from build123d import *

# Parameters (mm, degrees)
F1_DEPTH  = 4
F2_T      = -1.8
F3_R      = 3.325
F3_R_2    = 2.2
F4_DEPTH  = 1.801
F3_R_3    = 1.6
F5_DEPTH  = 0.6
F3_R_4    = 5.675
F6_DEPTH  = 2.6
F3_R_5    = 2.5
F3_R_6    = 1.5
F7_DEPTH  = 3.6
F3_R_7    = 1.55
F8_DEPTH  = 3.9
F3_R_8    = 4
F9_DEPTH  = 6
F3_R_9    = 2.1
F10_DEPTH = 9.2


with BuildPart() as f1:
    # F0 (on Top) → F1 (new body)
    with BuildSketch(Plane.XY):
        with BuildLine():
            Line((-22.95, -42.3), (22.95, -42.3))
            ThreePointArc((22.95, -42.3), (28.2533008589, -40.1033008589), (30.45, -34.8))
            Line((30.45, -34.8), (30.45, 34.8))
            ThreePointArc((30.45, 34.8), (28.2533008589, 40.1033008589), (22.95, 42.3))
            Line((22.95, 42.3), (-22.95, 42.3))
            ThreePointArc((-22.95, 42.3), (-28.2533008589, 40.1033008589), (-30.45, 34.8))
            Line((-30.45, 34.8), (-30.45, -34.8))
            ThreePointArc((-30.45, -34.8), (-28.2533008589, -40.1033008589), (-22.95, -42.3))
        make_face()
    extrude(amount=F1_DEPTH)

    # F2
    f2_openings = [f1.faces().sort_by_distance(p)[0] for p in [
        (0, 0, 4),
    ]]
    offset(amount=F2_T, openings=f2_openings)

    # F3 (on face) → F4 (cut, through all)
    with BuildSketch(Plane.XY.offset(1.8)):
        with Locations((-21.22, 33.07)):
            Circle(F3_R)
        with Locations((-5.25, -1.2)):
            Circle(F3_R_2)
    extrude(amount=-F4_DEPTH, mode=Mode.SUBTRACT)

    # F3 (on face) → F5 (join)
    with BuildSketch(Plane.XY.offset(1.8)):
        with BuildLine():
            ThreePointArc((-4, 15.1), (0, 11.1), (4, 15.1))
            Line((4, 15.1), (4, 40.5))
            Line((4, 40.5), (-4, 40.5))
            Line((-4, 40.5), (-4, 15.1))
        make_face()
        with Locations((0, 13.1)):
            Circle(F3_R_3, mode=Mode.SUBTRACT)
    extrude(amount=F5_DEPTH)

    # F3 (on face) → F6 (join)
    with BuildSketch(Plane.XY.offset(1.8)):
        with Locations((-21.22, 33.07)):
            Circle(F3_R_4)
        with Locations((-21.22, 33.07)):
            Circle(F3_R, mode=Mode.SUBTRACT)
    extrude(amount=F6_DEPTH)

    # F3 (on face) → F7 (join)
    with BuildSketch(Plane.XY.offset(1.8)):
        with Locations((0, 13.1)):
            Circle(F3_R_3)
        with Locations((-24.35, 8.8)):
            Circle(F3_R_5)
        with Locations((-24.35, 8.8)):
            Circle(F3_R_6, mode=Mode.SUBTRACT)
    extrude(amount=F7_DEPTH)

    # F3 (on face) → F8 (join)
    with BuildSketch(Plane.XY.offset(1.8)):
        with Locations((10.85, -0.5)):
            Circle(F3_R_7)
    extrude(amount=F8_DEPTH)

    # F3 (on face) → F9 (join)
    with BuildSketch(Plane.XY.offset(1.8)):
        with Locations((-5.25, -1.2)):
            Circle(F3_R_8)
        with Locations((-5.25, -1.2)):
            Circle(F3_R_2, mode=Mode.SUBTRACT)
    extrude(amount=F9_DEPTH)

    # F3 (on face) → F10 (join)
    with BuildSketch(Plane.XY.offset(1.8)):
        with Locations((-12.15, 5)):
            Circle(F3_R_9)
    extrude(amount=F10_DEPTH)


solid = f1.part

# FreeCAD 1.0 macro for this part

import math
import FreeCAD as App
import Part
import Sketcher
from FreeCAD import Vector
Q = App.Units.Quantity


def faces_at(feature, points):
    """Names of the faces that lie closest to the given points."""
    faces = feature.Shape.Faces
    near = lambda p: min(range(len(faces)), key=lambda i: faces[i].distToShape(Part.Vertex(*p))[0])
    return sorted({f"Face{near(p) + 1}" for p in points})

doc = App.newDocument("Part")
body = doc.addObject("PartDesign::Body", "Body")

# Sketch on XY plane
sketch1 = body.newObject("Sketcher::SketchObject", "Sketch")
sketch1.AttachmentSupport = (doc.getObject("XY_Plane"), [""])
sketch1.MapMode = "FlatFace"
sketch1.addGeometry(Part.LineSegment(Vector(-23, -42, 0), Vector(23, -42, 0)), False)
sketch1.addGeometry(Part.ArcOfCircle(Part.Circle(Vector(23, -35, 0), Vector(0, 0, 1), 8), math.radians(-90), math.radians(0)), False)
sketch1.addGeometry(Part.LineSegment(Vector(30, -35, 0), Vector(30, 35, 0)), False)
sketch1.addGeometry(Part.ArcOfCircle(Part.Circle(Vector(23, 35, 0), Vector(0, 0, 1), 8), math.radians(0), math.radians(90)), False)
sketch1.addGeometry(Part.LineSegment(Vector(23, 42, 0), Vector(-23, 42, 0)), False)
sketch1.addGeometry(Part.ArcOfCircle(Part.Circle(Vector(-23, 35, 0), Vector(0, 0, 1), 8), math.radians(90), math.radians(180)), False)
sketch1.addGeometry(Part.LineSegment(Vector(-30, 35, 0), Vector(-30, -35, 0)), False)
sketch1.addGeometry(Part.ArcOfCircle(Part.Circle(Vector(-23, -35, 0), Vector(0, 0, 1), 8), math.radians(180), math.radians(270)), False)
sketch1.addConstraint(Sketcher.Constraint("Tangent", 0, 2, 1, 1))
sketch1.addConstraint(Sketcher.Constraint("Tangent", 1, 2, 2, 1))
sketch1.addConstraint(Sketcher.Constraint("Tangent", 2, 2, 3, 1))
sketch1.addConstraint(Sketcher.Constraint("Tangent", 3, 2, 4, 1))
sketch1.addConstraint(Sketcher.Constraint("Tangent", 4, 2, 5, 1))
sketch1.addConstraint(Sketcher.Constraint("Tangent", 5, 2, 6, 1))
sketch1.addConstraint(Sketcher.Constraint("Tangent", 6, 2, 7, 1))
sketch1.addConstraint(Sketcher.Constraint("Tangent", 7, 2, 0, 1))
sketch1.addConstraint(Sketcher.Constraint("Horizontal", 0))
sketch1.addConstraint(Sketcher.Constraint("Vertical", 2))
sketch1.addConstraint(Sketcher.Constraint("Horizontal", 4))
sketch1.addConstraint(Sketcher.Constraint("Vertical", 6))
sketch1.addConstraint(Sketcher.Constraint("Equal", 1, 3))
sketch1.addConstraint(Sketcher.Constraint("Equal", 3, 5))
sketch1.addConstraint(Sketcher.Constraint("Equal", 5, 7))
sketch1.addConstraint(Sketcher.Constraint("Symmetric", 1, 3, 5, 3, -1, 1))
sketch1.addConstraint(Sketcher.Constraint("Radius", 1, Q("7.5 mm")))
sketch1.addConstraint(Sketcher.Constraint("DistanceX", 0, 1, 0, 2, Q("45.9 mm")))
sketch1.addConstraint(Sketcher.Constraint("DistanceY", 2, 1, 2, 2, Q("69.6 mm")))
pad1 = body.newObject("PartDesign::Pad", "Pad")
pad1.Profile = sketch1
pad1.Length = 4
doc.recompute()

thickness = body.newObject("PartDesign::Thickness", "Thickness")
thickness.Base = (pad1, faces_at(pad1, [(0, 0, 4)]))
thickness.Value = 1.8
thickness.Reversed = True
thickness.Join = "Arc"

# Sketch on XY plane
sketch2 = body.newObject("Sketcher::SketchObject", "Sketch001")
sketch2.AttachmentSupport = (doc.getObject("XY_Plane"), [""])
sketch2.MapMode = "FlatFace"
sketch2.AttachmentOffset = App.Placement(Vector(0, 0, 1.8), App.Rotation())
sketch2.addGeometry(Part.Circle(Vector(-21.2, 33.1, 0), Vector(0, 0, 1), 3.3), False)
sketch2.addGeometry(Part.Circle(Vector(-5.2, -1.2, 0), Vector(0, 0, 1), 2.2), False)
sketch2.addConstraint(Sketcher.Constraint("Diameter", 1, Q("4.4 mm")))
sketch2.addConstraint(Sketcher.Constraint("Diameter", 0, Q("6.65 mm")))
sketch2.addConstraint(Sketcher.Constraint("DistanceY", 1, 3, -1, 1, Q("1.2 mm")))
sketch2.addConstraint(Sketcher.Constraint("DistanceX", 0, 3, -1, 1, Q("21.22 mm")))
sketch2.addConstraint(Sketcher.Constraint("DistanceY", -1, 1, 0, 3, Q("33.07 mm")))
sketch2.addConstraint(Sketcher.Constraint("DistanceX", 1, 3, -1, 1, Q("5.25 mm")))
pocket1 = body.newObject("PartDesign::Pocket", "Pocket")
pocket1.Profile = sketch2
pocket1.Type = "ThroughAll"

# Sketch on XY plane
sketch3 = body.newObject("Sketcher::SketchObject", "Sketch002")
sketch3.AttachmentSupport = (doc.getObject("XY_Plane"), [""])
sketch3.MapMode = "FlatFace"
sketch3.AttachmentOffset = App.Placement(Vector(0, 0, 1.8), App.Rotation())
sketch3.addGeometry(Part.ArcOfCircle(Part.Circle(Vector(0, 15.1, 0), Vector(0, 0, 1), 4), math.radians(180), math.radians(360)), False)
sketch3.addGeometry(Part.LineSegment(Vector(4, 15.1, 0), Vector(4, 40.5, 0)), False)
sketch3.addGeometry(Part.LineSegment(Vector(4, 40.5, 0), Vector(-4, 40.5, 0)), False)
sketch3.addGeometry(Part.LineSegment(Vector(-4, 40.5, 0), Vector(-4, 15.1, 0)), False)
sketch3.addGeometry(Part.Circle(Vector(0, 13.1, 0), Vector(0, 0, 1), 1.6), False)
sketch3.addConstraint(Sketcher.Constraint("Tangent", 0, 2, 1, 1))
sketch3.addConstraint(Sketcher.Constraint("Coincident", 1, 2, 2, 1))
sketch3.addConstraint(Sketcher.Constraint("Coincident", 2, 2, 3, 1))
sketch3.addConstraint(Sketcher.Constraint("Tangent", 3, 2, 0, 1))
sketch3.addConstraint(Sketcher.Constraint("Vertical", 1))
sketch3.addConstraint(Sketcher.Constraint("Horizontal", 2))
sketch3.addConstraint(Sketcher.Constraint("Vertical", 3))
sketch3.addConstraint(Sketcher.Constraint("PointOnObject", 0, 3, -2))
sketch3.addConstraint(Sketcher.Constraint("PointOnObject", 4, 3, -2))
sketch3.addConstraint(Sketcher.Constraint("Radius", 0, Q("4 mm")))
sketch3.addConstraint(Sketcher.Constraint("Diameter", 4, Q("3.2 mm")))
sketch3.addConstraint(Sketcher.Constraint("DistanceY", 1, 1, 1, 2, Q("25.4 mm")))
sketch3.addConstraint(Sketcher.Constraint("DistanceY", 4, 3, 0, 3, Q("2 mm")))
sketch3.addConstraint(Sketcher.Constraint("DistanceY", -1, 1, 0, 3, Q("15.1 mm")))
pad2 = body.newObject("PartDesign::Pad", "Pad001")
pad2.Profile = sketch3
pad2.Length = 0.6

# Sketch on XY plane
sketch4 = body.newObject("Sketcher::SketchObject", "Sketch003")
sketch4.AttachmentSupport = (doc.getObject("XY_Plane"), [""])
sketch4.MapMode = "FlatFace"
sketch4.AttachmentOffset = App.Placement(Vector(0, 0, 1.8), App.Rotation())
sketch4.addGeometry(Part.Circle(Vector(-21.2, 33.1, 0), Vector(0, 0, 1), 5.7), False)
sketch4.addGeometry(Part.Circle(Vector(-21.2, 33.1, 0), Vector(0, 0, 1), 3.3), False)
sketch4.addConstraint(Sketcher.Constraint("Coincident", 1, 3, 0, 3))
sketch4.addConstraint(Sketcher.Constraint("Diameter", 0, Q("11.35 mm")))
sketch4.addConstraint(Sketcher.Constraint("Diameter", 1, Q("6.65 mm")))
sketch4.addConstraint(Sketcher.Constraint("DistanceX", 0, 3, -1, 1, Q("21.22 mm")))
sketch4.addConstraint(Sketcher.Constraint("DistanceY", -1, 1, 0, 3, Q("33.07 mm")))
pad3 = body.newObject("PartDesign::Pad", "Pad002")
pad3.Profile = sketch4
pad3.Length = 2.6

# Sketch on XY plane
sketch5 = body.newObject("Sketcher::SketchObject", "Sketch004")
sketch5.AttachmentSupport = (doc.getObject("XY_Plane"), [""])
sketch5.MapMode = "FlatFace"
sketch5.AttachmentOffset = App.Placement(Vector(0, 0, 1.8), App.Rotation())
sketch5.addGeometry(Part.Circle(Vector(0, 13.1, 0), Vector(0, 0, 1), 1.6), False)
sketch5.addGeometry(Part.Circle(Vector(-24.4, 8.8, 0), Vector(0, 0, 1), 2.5), False)
sketch5.addGeometry(Part.Circle(Vector(-24.4, 8.8, 0), Vector(0, 0, 1), 1.5), False)
sketch5.addConstraint(Sketcher.Constraint("Coincident", 2, 3, 1, 3))
sketch5.addConstraint(Sketcher.Constraint("PointOnObject", 0, 3, -2))
sketch5.addConstraint(Sketcher.Constraint("Diameter", 1, Q("5 mm")))
sketch5.addConstraint(Sketcher.Constraint("Diameter", 2, Q("3 mm")))
sketch5.addConstraint(Sketcher.Constraint("Diameter", 0, Q("3.2 mm")))
sketch5.addConstraint(Sketcher.Constraint("DistanceY", -1, 1, 0, 3, Q("13.1 mm")))
sketch5.addConstraint(Sketcher.Constraint("DistanceY", -1, 1, 1, 3, Q("8.8 mm")))
sketch5.addConstraint(Sketcher.Constraint("DistanceX", 1, 3, -1, 1, Q("24.35 mm")))
pad4 = body.newObject("PartDesign::Pad", "Pad003")
pad4.Profile = sketch5
pad4.Length = 3.6

# Sketch on XY plane
sketch6 = body.newObject("Sketcher::SketchObject", "Sketch005")
sketch6.AttachmentSupport = (doc.getObject("XY_Plane"), [""])
sketch6.MapMode = "FlatFace"
sketch6.AttachmentOffset = App.Placement(Vector(0, 0, 1.8), App.Rotation())
sketch6.addGeometry(Part.Circle(Vector(10.8, -0.5, 0), Vector(0, 0, 1), 1.6), False)
sketch6.addConstraint(Sketcher.Constraint("Diameter", 0, Q("3.1 mm")))
sketch6.addConstraint(Sketcher.Constraint("DistanceY", 0, 3, -1, 1, Q("0.5 mm")))
sketch6.addConstraint(Sketcher.Constraint("DistanceX", -1, 1, 0, 3, Q("10.85 mm")))
pad5 = body.newObject("PartDesign::Pad", "Pad004")
pad5.Profile = sketch6
pad5.Length = 3.9

# Sketch on XY plane
sketch7 = body.newObject("Sketcher::SketchObject", "Sketch006")
sketch7.AttachmentSupport = (doc.getObject("XY_Plane"), [""])
sketch7.MapMode = "FlatFace"
sketch7.AttachmentOffset = App.Placement(Vector(0, 0, 1.8), App.Rotation())
sketch7.addGeometry(Part.Circle(Vector(-5.2, -1.2, 0), Vector(0, 0, 1), 4), False)
sketch7.addGeometry(Part.Circle(Vector(-5.2, -1.2, 0), Vector(0, 0, 1), 2.2), False)
sketch7.addConstraint(Sketcher.Constraint("Coincident", 1, 3, 0, 3))
sketch7.addConstraint(Sketcher.Constraint("Diameter", 0, Q("8 mm")))
sketch7.addConstraint(Sketcher.Constraint("Diameter", 1, Q("4.4 mm")))
sketch7.addConstraint(Sketcher.Constraint("DistanceY", 0, 3, -1, 1, Q("1.2 mm")))
sketch7.addConstraint(Sketcher.Constraint("DistanceX", 0, 3, -1, 1, Q("5.25 mm")))
pad6 = body.newObject("PartDesign::Pad", "Pad005")
pad6.Profile = sketch7
pad6.Length = 6

# Sketch on XY plane
sketch8 = body.newObject("Sketcher::SketchObject", "Sketch007")
sketch8.AttachmentSupport = (doc.getObject("XY_Plane"), [""])
sketch8.MapMode = "FlatFace"
sketch8.AttachmentOffset = App.Placement(Vector(0, 0, 1.8), App.Rotation())
sketch8.addGeometry(Part.Circle(Vector(-12.2, 5, 0), Vector(0, 0, 1), 2.1), False)
sketch8.addConstraint(Sketcher.Constraint("Diameter", 0, Q("4.2 mm")))
sketch8.addConstraint(Sketcher.Constraint("DistanceY", -1, 1, 0, 3, Q("5 mm")))
sketch8.addConstraint(Sketcher.Constraint("DistanceX", 0, 3, -1, 1, Q("12.15 mm")))
pad7 = body.newObject("PartDesign::Pad", "Pad006")
pad7.Profile = sketch8
pad7.Length = 9.2

doc.recompute()
